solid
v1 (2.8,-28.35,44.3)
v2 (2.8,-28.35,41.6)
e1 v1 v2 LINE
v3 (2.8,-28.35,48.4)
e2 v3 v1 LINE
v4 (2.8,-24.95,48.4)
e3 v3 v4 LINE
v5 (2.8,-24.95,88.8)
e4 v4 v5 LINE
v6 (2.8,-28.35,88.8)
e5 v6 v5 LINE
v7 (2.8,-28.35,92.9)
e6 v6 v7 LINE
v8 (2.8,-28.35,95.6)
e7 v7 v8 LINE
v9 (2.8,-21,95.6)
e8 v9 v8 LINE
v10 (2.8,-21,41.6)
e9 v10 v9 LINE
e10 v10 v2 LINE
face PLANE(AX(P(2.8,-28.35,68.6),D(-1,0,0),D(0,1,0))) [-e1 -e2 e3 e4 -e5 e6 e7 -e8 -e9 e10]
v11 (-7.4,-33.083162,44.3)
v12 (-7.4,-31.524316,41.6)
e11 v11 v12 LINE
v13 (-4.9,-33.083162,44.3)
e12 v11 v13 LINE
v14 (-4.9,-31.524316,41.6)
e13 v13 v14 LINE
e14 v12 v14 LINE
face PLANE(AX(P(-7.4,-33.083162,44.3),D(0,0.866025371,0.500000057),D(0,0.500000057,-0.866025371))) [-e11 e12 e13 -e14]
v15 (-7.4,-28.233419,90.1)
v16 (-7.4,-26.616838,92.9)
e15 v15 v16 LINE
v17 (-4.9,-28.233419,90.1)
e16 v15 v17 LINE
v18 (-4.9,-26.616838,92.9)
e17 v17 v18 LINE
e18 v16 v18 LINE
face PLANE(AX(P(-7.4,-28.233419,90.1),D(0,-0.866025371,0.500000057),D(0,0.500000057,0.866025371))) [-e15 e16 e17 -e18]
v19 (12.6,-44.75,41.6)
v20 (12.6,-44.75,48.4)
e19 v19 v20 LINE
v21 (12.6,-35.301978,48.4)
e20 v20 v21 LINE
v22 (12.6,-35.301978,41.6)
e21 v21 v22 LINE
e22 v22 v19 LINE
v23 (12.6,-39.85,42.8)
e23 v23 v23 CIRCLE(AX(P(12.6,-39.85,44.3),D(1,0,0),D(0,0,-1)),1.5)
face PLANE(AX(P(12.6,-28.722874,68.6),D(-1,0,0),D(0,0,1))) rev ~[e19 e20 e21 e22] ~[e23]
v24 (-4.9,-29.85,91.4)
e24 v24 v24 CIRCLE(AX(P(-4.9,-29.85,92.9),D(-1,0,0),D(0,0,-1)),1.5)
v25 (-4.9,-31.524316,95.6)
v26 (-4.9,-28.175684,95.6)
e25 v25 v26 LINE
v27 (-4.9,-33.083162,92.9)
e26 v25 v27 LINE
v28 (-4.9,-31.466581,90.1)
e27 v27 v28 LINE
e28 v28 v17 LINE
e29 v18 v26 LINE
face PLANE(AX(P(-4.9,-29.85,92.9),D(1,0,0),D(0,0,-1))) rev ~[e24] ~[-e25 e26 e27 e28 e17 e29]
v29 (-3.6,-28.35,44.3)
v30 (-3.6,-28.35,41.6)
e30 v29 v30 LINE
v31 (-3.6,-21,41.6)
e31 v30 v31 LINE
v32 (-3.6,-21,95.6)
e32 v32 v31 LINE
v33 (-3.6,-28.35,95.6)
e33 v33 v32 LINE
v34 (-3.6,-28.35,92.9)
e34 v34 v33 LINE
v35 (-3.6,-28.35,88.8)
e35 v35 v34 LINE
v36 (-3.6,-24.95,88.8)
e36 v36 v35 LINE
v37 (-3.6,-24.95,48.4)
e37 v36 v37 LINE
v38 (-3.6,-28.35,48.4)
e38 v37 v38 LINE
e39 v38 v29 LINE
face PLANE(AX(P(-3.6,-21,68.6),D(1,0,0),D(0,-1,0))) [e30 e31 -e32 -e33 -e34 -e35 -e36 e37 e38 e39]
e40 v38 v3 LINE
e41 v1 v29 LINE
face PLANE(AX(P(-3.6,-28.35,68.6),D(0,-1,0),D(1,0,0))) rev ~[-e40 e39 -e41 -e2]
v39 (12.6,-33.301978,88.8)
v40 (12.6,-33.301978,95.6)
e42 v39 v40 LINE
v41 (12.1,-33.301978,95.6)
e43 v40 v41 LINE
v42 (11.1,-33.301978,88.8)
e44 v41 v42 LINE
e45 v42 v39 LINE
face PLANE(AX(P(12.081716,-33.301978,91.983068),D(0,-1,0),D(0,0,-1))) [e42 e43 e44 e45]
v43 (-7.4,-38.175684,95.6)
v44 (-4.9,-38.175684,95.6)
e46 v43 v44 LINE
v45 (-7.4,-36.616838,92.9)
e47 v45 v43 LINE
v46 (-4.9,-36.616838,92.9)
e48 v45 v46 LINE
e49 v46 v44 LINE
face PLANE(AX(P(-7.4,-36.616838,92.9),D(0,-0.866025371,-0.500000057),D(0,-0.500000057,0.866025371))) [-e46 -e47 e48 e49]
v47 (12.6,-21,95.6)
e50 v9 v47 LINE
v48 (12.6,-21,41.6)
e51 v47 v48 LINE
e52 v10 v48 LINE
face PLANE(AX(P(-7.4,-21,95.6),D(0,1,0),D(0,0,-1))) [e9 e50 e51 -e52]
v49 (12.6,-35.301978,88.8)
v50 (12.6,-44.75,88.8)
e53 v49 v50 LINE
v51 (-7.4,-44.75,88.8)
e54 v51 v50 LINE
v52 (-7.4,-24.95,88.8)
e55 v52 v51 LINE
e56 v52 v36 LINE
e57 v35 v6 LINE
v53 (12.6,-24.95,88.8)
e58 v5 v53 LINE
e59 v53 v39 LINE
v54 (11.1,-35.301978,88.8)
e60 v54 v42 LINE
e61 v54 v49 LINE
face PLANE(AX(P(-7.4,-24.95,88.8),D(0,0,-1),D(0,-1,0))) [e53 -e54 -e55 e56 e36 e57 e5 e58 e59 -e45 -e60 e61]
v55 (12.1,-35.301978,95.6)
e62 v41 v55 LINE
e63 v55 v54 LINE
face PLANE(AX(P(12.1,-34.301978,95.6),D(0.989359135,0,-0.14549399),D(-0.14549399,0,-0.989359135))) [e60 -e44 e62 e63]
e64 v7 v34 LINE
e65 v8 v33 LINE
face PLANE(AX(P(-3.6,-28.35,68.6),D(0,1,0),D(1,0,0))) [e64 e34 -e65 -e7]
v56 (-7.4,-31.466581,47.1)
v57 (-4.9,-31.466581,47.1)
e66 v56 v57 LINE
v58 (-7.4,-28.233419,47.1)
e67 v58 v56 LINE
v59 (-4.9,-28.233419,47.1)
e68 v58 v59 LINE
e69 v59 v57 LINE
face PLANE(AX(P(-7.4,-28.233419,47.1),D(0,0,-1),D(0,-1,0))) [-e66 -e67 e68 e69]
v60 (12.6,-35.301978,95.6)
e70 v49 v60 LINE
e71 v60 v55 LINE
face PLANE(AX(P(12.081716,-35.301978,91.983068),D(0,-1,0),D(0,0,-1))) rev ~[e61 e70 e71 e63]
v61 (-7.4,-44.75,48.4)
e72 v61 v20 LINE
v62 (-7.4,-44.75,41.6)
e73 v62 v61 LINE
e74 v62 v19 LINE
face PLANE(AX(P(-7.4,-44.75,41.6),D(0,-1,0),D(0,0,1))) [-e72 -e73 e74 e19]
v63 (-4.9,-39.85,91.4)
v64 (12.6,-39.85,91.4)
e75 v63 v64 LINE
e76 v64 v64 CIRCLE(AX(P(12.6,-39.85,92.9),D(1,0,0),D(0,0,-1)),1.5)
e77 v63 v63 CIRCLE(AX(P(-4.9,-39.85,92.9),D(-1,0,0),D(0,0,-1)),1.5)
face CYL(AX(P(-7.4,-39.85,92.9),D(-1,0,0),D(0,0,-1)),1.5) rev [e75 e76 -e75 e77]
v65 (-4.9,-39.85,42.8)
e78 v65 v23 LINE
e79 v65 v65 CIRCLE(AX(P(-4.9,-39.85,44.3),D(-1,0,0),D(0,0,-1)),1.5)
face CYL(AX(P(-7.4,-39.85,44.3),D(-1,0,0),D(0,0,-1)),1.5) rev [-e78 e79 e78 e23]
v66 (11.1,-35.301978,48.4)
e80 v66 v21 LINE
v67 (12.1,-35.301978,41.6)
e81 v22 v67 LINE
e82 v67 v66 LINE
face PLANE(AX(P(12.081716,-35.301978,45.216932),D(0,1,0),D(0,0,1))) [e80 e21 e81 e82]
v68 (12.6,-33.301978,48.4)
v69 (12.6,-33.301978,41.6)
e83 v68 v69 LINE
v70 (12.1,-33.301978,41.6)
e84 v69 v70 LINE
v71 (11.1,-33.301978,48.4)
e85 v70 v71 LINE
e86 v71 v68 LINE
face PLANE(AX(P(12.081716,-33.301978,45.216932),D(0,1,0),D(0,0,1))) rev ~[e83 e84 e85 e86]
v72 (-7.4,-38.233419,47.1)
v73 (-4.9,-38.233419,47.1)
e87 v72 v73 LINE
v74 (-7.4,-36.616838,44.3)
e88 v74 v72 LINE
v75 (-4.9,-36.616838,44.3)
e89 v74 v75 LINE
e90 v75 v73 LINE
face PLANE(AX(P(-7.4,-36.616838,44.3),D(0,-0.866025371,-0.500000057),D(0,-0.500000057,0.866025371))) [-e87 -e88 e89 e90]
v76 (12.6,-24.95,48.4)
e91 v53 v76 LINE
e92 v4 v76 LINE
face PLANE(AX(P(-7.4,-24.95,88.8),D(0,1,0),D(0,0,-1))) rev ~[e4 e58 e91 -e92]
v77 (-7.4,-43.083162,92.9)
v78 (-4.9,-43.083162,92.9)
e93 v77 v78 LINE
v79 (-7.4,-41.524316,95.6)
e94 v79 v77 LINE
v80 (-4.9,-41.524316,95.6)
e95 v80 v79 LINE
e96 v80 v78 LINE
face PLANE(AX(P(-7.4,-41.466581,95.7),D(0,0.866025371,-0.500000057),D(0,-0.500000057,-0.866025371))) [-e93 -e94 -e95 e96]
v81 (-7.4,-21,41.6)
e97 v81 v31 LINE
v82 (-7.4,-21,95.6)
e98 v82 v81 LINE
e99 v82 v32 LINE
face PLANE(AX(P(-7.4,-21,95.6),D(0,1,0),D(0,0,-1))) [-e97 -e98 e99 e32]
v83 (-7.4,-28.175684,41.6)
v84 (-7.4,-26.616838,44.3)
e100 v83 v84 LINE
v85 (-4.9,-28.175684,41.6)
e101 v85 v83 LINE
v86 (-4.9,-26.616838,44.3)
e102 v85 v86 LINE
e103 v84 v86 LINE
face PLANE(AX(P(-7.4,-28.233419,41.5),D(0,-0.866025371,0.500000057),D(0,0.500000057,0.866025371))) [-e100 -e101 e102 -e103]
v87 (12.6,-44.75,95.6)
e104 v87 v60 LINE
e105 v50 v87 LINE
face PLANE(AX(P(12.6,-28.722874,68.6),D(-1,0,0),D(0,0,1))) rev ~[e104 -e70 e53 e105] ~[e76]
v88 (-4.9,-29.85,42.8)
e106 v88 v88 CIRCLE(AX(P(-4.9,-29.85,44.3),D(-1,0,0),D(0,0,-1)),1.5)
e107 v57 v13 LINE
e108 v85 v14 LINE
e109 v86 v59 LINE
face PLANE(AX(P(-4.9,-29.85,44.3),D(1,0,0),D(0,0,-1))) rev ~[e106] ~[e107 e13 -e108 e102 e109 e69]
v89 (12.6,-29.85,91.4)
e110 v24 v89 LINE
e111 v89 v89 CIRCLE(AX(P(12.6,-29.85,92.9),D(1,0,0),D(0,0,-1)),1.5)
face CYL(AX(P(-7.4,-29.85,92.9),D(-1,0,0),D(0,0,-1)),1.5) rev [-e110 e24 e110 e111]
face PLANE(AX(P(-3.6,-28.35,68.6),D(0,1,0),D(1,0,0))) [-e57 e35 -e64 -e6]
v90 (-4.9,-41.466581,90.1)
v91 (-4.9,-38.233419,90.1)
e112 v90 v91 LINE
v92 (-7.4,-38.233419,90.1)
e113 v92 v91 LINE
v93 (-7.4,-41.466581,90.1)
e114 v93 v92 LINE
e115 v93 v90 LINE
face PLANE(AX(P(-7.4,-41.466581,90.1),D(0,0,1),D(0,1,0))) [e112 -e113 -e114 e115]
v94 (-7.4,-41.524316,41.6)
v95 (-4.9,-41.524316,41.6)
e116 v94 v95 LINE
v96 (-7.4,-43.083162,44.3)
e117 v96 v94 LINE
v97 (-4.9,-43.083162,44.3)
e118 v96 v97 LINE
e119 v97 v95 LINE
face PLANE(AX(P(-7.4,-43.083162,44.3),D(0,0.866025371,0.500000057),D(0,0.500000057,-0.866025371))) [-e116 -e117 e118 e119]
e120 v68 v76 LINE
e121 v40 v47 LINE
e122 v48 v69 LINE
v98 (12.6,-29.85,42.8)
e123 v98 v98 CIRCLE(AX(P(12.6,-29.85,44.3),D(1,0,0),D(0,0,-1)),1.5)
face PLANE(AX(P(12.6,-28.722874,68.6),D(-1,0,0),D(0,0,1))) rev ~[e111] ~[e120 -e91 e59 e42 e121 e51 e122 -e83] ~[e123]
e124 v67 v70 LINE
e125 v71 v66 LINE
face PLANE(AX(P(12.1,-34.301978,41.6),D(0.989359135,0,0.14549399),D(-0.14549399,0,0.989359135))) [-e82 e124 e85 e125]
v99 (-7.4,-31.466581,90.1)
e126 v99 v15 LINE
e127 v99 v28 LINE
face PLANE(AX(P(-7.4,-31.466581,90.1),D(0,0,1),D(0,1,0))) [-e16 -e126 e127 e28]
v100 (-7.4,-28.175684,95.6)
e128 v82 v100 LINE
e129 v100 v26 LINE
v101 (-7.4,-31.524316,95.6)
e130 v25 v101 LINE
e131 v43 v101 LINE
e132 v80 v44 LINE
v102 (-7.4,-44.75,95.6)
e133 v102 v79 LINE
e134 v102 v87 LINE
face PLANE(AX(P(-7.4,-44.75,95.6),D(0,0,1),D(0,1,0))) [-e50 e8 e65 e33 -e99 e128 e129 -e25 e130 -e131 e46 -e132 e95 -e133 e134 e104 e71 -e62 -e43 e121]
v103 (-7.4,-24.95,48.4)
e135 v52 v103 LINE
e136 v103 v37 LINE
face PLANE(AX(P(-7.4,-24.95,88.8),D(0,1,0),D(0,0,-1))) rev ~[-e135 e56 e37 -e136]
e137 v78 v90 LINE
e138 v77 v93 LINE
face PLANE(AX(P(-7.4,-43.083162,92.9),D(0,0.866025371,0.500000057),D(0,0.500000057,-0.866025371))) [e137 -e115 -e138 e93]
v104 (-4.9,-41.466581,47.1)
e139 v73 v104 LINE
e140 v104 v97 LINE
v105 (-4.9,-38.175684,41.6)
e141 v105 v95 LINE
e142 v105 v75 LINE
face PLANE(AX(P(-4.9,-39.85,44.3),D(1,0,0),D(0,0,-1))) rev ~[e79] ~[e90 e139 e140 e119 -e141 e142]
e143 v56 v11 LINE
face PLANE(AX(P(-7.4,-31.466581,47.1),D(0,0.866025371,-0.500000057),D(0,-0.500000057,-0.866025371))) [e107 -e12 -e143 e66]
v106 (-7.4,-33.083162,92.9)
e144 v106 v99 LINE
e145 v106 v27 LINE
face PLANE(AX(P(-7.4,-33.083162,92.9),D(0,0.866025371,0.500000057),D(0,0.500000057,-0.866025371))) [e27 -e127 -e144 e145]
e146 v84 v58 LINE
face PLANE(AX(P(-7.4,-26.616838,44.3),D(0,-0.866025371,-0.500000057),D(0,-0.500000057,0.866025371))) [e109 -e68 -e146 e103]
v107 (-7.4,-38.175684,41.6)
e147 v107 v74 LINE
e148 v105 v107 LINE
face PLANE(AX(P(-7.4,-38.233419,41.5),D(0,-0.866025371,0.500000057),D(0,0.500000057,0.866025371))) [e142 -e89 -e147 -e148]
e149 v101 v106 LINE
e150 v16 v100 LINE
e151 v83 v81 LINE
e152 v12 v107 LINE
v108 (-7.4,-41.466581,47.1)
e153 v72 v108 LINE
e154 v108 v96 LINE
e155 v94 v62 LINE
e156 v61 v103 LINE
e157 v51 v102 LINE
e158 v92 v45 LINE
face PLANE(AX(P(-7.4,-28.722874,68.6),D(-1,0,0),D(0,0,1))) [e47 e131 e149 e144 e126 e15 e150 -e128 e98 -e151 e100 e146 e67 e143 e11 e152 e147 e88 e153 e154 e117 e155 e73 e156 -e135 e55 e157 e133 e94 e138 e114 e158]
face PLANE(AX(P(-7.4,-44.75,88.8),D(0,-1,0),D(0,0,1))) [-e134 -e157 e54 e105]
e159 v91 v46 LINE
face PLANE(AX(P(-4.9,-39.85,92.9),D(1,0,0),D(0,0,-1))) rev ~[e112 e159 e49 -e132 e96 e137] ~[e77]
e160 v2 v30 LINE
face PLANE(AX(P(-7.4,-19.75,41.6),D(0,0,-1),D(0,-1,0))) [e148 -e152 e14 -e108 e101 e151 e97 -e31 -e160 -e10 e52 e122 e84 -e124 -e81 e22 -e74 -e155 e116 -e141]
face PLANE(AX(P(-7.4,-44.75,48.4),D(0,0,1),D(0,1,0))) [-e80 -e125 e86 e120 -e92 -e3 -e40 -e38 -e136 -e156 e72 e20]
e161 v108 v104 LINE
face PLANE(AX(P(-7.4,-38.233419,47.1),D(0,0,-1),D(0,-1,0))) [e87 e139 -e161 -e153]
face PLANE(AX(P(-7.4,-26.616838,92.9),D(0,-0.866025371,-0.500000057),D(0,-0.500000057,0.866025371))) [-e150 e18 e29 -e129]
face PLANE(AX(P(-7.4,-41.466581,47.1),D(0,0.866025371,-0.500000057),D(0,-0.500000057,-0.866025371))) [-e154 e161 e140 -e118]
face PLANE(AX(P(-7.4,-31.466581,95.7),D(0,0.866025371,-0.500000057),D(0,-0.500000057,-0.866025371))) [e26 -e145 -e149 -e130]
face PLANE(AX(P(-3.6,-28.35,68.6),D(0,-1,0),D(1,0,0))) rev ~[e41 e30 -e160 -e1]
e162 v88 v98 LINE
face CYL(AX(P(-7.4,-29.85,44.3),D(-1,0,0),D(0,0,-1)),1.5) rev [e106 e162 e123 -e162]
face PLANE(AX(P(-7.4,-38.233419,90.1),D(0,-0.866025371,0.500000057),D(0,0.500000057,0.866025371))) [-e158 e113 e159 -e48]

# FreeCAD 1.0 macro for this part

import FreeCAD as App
import Part
import Sketcher
from FreeCAD import Vector
Q = App.Units.Quantity


def add_polygon(sketch, points):
    """Adds a closed chain of lines whose ends are joined by coincident constraints."""
    first, n = sketch.GeometryCount, len(points)
    for a, b in zip(points, points[1:] + points[:1]):
        sketch.addGeometry(Part.LineSegment(App.Vector(*a, 0), App.Vector(*b, 0)), False)
    for i in range(n):
        sketch.addConstraint(Sketcher.Constraint("Coincident", first + i, 2, first + (i + 1) % n, 1))

doc = App.newDocument("Part")
params = doc.addObject("Spreadsheet::Sheet", "Params")
for row, (alias, value) in enumerate([
    ("sketch1_diameter", "3 mm"),
    ("sketch1_width", "54 mm"),
    ("sketch1_height", "25 mm"),
    ("sketch1_width2", "6.8 mm"),
    ("sketch1_height2", "19.8 mm"),
    ("pad1_length", "20 mm"),
    ("sketch2_width", "6.4 mm"),
    ("sketch2_height", "7.35 mm"),
    ("sketch3_width", "6.8 mm"),
    ("sketch3_height", "0.5 mm"),
    ("sketch3_height2", "1.5 mm"),
    ("pocket2_length", "2 mm"),
    ("pocket3_length", "2.5 mm"),
    ("sketch5_width", "54 mm"),
    ("sketch5_height", "1.25 mm"),
], start=1):
    params.set(f"A{row}", alias)
    params.set(f"B{row}", "=" + value)
    params.setAlias(f"B{row}", alias)

body = doc.addObject("PartDesign::Body", "Body")

# Sketch on XZ plane
sketch1 = body.newObject("Sketcher::SketchObject", "Sketch")
sketch1.AttachmentSupport = (doc.getObject("XZ_Plane"), [""])
sketch1.MapMode = "FlatFace"
add_polygon(sketch1, [(27, 25), (-27, 25), (-27, 0), (-20.2, 0), (-20.2, 19.8), (20.2, 19.8), (20.2, 0), (27, 0)])  # lines 0-7
sketch1.addGeometry(Part.Circle(Vector(24.3, 4.9, 0), Vector(0, 0, 1), 1.5), False)  # 8
sketch1.addGeometry(Part.Circle(Vector(-24.3, 4.9, 0), Vector(0, 0, 1), 1.5), False)  # 9
sketch1.addGeometry(Part.Circle(Vector(24.3, 14.9, 0), Vector(0, 0, 1), 1.5), False)  # 10
sketch1.addGeometry(Part.Circle(Vector(-24.3, 14.9, 0), Vector(0, 0, 1), 1.5), False)  # 11
sketch1.addConstraint([
    Sketcher.Constraint("Horizontal", 0),
    Sketcher.Constraint("Vertical", 1),
    Sketcher.Constraint("Horizontal", 2),
    Sketcher.Constraint("Vertical", 3),
    Sketcher.Constraint("Horizontal", 4),
    Sketcher.Constraint("Vertical", 5),
    Sketcher.Constraint("Horizontal", 6),
    Sketcher.Constraint("Vertical", 7),
    Sketcher.Constraint("Equal", 8, 9),
    Sketcher.Constraint("Equal", 9, 10),
    Sketcher.Constraint("Equal", 10, 11),
    Sketcher.Constraint("Symmetric", 2, 2, 5, 2, -1, 1),
    Sketcher.Constraint("Symmetric", 8, 3, 9, 3, -2),
    Sketcher.Constraint("Symmetric", 10, 3, 11, 3, -2),
    Sketcher.Constraint("Symmetric", 1, 2, 6, 2, -2),
    Sketcher.Constraint("Vertical", 8, 3, 10, 3),
    Sketcher.Constraint("Diameter", 8, 3.0),
    Sketcher.Constraint("DistanceX", 0, 2, 0, 1, 54.0),
    Sketcher.Constraint("DistanceY", 1, 2, 1, 1, 25.0),
    Sketcher.Constraint("DistanceX", 2, 1, 2, 2, 6.8),
    Sketcher.Constraint("DistanceY", 3, 1, 3, 2, 19.8),
    Sketcher.Constraint("DistanceY", 8, 3, 10, 3, 10.0),
    Sketcher.Constraint("DistanceX", -1, 1, 8, 3, 24.3),
    Sketcher.Constraint("DistanceY", -1, 1, 8, 3, 4.9),
])
sketch1.setExpression("Constraints[24]", "Params.sketch1_diameter")
sketch1.setExpression("Constraints[25]", "Params.sketch1_width")
sketch1.setExpression("Constraints[26]", "Params.sketch1_height")
sketch1.setExpression("Constraints[27]", "Params.sketch1_width2")
sketch1.setExpression("Constraints[28]", "Params.sketch1_height2")
pad1 = body.newObject("PartDesign::Pad", "Pad")
pad1.Profile = sketch1
pad1.setExpression("Length", "Params.pad1_length")

# Sketch on YZ plane
sketch2 = body.newObject("Sketcher::SketchObject", "Sketch001")
sketch2.AttachmentSupport = (doc.getObject("YZ_Plane"), [""])
sketch2.MapMode = "FlatFace"
add_polygon(sketch2, [(-10, 24), (-10, 16), (-4, 16), (-4, 24)])  # lines 0-3
sketch2.addConstraint([
    Sketcher.Constraint("Vertical", 0),
    Sketcher.Constraint("Horizontal", 1),
    Sketcher.Constraint("Vertical", 2),
    Sketcher.Constraint("Horizontal", 3),
    Sketcher.Constraint("DistanceX", 1, 1, 1, 2, 6.4),
    Sketcher.Constraint("DistanceY", 0, 2, 0, 1, 7.35),
    Sketcher.Constraint("DistanceX", 0, 2, -1, 1, 10.2),
    Sketcher.Constraint("DistanceY", -1, 1, 0, 2, 16.4),
])
sketch2.setExpression("Constraints[8]", "Params.sketch2_width")
sketch2.setExpression("Constraints[9]", "Params.sketch2_height")
pocket1 = body.newObject("PartDesign::Pocket", "Pocket")
pocket1.Profile = sketch2
pocket1.Type = "ThroughAll"
pocket1.Midplane = True

# Sketch on XY plane
sketch3 = body.newObject("Sketcher::SketchObject", "Sketch002")
sketch3.AttachmentSupport = (doc.getObject("XY_Plane"), [""])
sketch3.MapMode = "FlatFace"
sketch3.AttachmentOffset = App.Placement(Vector(0, 0, 10.448022), App.Rotation())
add_polygon(sketch3, [(-20.2, -20), (-27, -20), (-27, -19.5), (-20.2, -18.5)])  # lines 0-3
add_polygon(sketch3, [(27, -20), (20.2, -20), (20.2, -18.5), (27, -19.5)])  # lines 4-7
sketch3.addConstraint([
    Sketcher.Constraint("Horizontal", 0),
    Sketcher.Constraint("Vertical", 1),
    Sketcher.Constraint("Vertical", 3),
    Sketcher.Constraint("Horizontal", 4),
    Sketcher.Constraint("Vertical", 5),
    Sketcher.Constraint("Vertical", 7),
    Sketcher.Constraint("Symmetric", 3, 2, 4, 2, -2),
    Sketcher.Constraint("Symmetric", 1, 2, 6, 2, -2),
    Sketcher.Constraint("Horizontal", 2, 2, 5, 2),
    Sketcher.Constraint("DistanceX", 0, 2, 0, 1, 6.8),
    Sketcher.Constraint("DistanceY", 1, 1, 1, 2, 0.5),
    Sketcher.Constraint("DistanceY", 3, 2, 3, 1, 1.5),
    Sketcher.Constraint("DistanceX", 0, 2, -1, 1, 27.0),
    Sketcher.Constraint("DistanceY", 0, 2, -1, 1, 20.0),
])
sketch3.setExpression("Constraints[17]", "Params.sketch3_width")
sketch3.setExpression("Constraints[18]", "Params.sketch3_height")
sketch3.setExpression("Constraints[19]", "Params.sketch3_height2")
pocket2 = body.newObject("PartDesign::Pocket", "Pocket001")
pocket2.Profile = sketch3
pocket2.setExpression("Length", "Params.pocket2_length")
pocket2.Midplane = True

# Sketch on XZ plane
sketch4 = body.newObject("Sketcher::SketchObject", "Sketch003")
sketch4.AttachmentSupport = (doc.getObject("XZ_Plane"), [""])
sketch4.MapMode = "FlatFace"
add_polygon(sketch4, [(-27.1, 16.5), (-27.1, 13.3), (-24.3, 11.7), (-21.5, 13.3), (-21.5, 16.5), (-24.3, 18.1)])  # lines 0-5
add_polygon(sketch4, [(-27.1, 6.5), (-27.1, 3.3), (-24.3, 1.7), (-21.5, 3.3), (-21.5, 6.5), (-24.3, 8.1)])  # lines 6-11
add_polygon(sketch4, [(21.5, 16.5), (21.5, 13.3), (24.3, 11.7), (27.1, 13.3), (27.1, 16.5), (24.3, 18.1)])  # lines 12-17
add_polygon(sketch4, [(21.5, 6.5), (21.5, 3.3), (24.3, 1.7), (27.1, 3.3), (27.1, 6.5), (24.3, 8.1)])  # lines 18-23
sketch4.addConstraint([
    Sketcher.Constraint("Vertical", 0),
    Sketcher.Constraint("Vertical", 3),
    Sketcher.Constraint("Vertical", 6),
    Sketcher.Constraint("Vertical", 9),
    Sketcher.Constraint("Vertical", 12),
    Sketcher.Constraint("Vertical", 15),
    Sketcher.Constraint("Vertical", 18),
    Sketcher.Constraint("Vertical", 21),
    Sketcher.Constraint("Symmetric", 2, 2, 12, 2, -2),
    Sketcher.Constraint("Symmetric", 1, 2, 13, 2, -2),
    Sketcher.Constraint("Symmetric", 0, 2, 14, 2, -2),
    Sketcher.Constraint("Symmetric", 4, 2, 16, 2, -2),
    Sketcher.Constraint("Symmetric", 8, 2, 18, 2, -2),
    Sketcher.Constraint("Symmetric", 7, 2, 19, 2, -2),
    Sketcher.Constraint("Symmetric", 6, 2, 20, 2, -2),
    Sketcher.Constraint("Symmetric", 10, 2, 22, 2, -2),
    Sketcher.Constraint("Parallel", 1, 4),
    Sketcher.Constraint("Parallel", 2, 5),
    Sketcher.Constraint("Parallel", 4, 7),
    Sketcher.Constraint("Parallel", 5, 8),
    Sketcher.Constraint("Parallel", 7, 10),
    Sketcher.Constraint("Parallel", 8, 11),
    Sketcher.Constraint("Parallel", 10, 13),
    Sketcher.Constraint("Parallel", 13, 16),
    Sketcher.Constraint("Parallel", 14, 17),
    Sketcher.Constraint("Parallel", 19, 22),
    Sketcher.Constraint("Parallel", 20, 23),
    Sketcher.Constraint("Horizontal", 0, 2, 2, 2),
    Sketcher.Constraint("Horizontal", 3, 2, 5, 2),
    Sketcher.Constraint("Horizontal", 6, 2, 8, 2),
    Sketcher.Constraint("Horizontal", 9, 2, 11, 2),
    Sketcher.Constraint("Vertical", 5, 2, 6, 2),
    Sketcher.Constraint("Vertical", 4, 2, 7, 2),
    Sketcher.Constraint("Equal", 3, 6),
    Sketcher.Constraint("Angle", 1, Q("-30.000004 deg")),
    Sketcher.Constraint("DistanceY", 6, 2, 0, 2, 10.0),
    Sketcher.Constraint("DistanceX", 2, 2, 12, 2, 43.0),
    Sketcher.Constraint("DistanceX", 0, 2, -1, 1, 27.1),
    Sketcher.Constraint("DistanceY", 0, 2, 0, 1, 3.233162),
    Sketcher.Constraint("DistanceY", -1, 1, 0, 2, 13.283419),
])
pocket3 = body.newObject("PartDesign::Pocket", "Pocket002")
pocket3.Profile = sketch4
pocket3.setExpression("Length", "Params.pocket3_length")
pocket3.Reversed = True

# Sketch on XZ plane
sketch5 = body.newObject("Sketcher::SketchObject", "Sketch004")
sketch5.AttachmentSupport = (doc.getObject("XZ_Plane"), [""])
sketch5.MapMode = "FlatFace"
add_polygon(sketch5, [(-27, 25), (-27, 23.8), (27, 23.8), (27, 25)])  # lines 0-3
sketch5.addConstraint([
    Sketcher.Constraint("Vertical", 0),
    Sketcher.Constraint("Horizontal", 1),
    Sketcher.Constraint("Vertical", 2),
    Sketcher.Constraint("Horizontal", 3),
    Sketcher.Constraint("DistanceX", 1, 1, 1, 2, 54.0),
    Sketcher.Constraint("DistanceX", 0, 2, -1, 1, 27.0),
    Sketcher.Constraint("DistanceY", -1, 1, 2, 2, 25.0),
    Sketcher.Constraint("DistanceY", 0, 2, 0, 1, 1.25),
])
sketch5.setExpression("Constraints[8]", "Params.sketch5_width")
sketch5.setExpression("Constraints[11]", "Params.sketch5_height")
pocket4 = body.newObject("PartDesign::Pocket", "Pocket003")
pocket4.Profile = sketch5
pocket4.Type = "ThroughAll"
pocket4.Midplane = True
body2 = doc.addObject("PartDesign::Body", "Body001")
doc.recompute()

body.Placement = App.Placement(Vector(0, 0, 0), App.Rotation(Vector(0, 1, 0), 90))
boolean = body2.newObject("PartDesign::Boolean", "Boolean")
boolean.Type = "Fuse"
boolean.addObjects([body])
body3 = doc.addObject("PartDesign::Body", "Body002")
doc.recompute()

body2.Placement = App.Placement(Vector(-7.4, -44.75, 68.6), App.Rotation(Vector(0, 0, 1), 90))
boolean2 = body3.newObject("PartDesign::Boolean", "Boolean001")
boolean2.Type = "Fuse"
boolean2.addObjects([body2])

doc.recompute()
